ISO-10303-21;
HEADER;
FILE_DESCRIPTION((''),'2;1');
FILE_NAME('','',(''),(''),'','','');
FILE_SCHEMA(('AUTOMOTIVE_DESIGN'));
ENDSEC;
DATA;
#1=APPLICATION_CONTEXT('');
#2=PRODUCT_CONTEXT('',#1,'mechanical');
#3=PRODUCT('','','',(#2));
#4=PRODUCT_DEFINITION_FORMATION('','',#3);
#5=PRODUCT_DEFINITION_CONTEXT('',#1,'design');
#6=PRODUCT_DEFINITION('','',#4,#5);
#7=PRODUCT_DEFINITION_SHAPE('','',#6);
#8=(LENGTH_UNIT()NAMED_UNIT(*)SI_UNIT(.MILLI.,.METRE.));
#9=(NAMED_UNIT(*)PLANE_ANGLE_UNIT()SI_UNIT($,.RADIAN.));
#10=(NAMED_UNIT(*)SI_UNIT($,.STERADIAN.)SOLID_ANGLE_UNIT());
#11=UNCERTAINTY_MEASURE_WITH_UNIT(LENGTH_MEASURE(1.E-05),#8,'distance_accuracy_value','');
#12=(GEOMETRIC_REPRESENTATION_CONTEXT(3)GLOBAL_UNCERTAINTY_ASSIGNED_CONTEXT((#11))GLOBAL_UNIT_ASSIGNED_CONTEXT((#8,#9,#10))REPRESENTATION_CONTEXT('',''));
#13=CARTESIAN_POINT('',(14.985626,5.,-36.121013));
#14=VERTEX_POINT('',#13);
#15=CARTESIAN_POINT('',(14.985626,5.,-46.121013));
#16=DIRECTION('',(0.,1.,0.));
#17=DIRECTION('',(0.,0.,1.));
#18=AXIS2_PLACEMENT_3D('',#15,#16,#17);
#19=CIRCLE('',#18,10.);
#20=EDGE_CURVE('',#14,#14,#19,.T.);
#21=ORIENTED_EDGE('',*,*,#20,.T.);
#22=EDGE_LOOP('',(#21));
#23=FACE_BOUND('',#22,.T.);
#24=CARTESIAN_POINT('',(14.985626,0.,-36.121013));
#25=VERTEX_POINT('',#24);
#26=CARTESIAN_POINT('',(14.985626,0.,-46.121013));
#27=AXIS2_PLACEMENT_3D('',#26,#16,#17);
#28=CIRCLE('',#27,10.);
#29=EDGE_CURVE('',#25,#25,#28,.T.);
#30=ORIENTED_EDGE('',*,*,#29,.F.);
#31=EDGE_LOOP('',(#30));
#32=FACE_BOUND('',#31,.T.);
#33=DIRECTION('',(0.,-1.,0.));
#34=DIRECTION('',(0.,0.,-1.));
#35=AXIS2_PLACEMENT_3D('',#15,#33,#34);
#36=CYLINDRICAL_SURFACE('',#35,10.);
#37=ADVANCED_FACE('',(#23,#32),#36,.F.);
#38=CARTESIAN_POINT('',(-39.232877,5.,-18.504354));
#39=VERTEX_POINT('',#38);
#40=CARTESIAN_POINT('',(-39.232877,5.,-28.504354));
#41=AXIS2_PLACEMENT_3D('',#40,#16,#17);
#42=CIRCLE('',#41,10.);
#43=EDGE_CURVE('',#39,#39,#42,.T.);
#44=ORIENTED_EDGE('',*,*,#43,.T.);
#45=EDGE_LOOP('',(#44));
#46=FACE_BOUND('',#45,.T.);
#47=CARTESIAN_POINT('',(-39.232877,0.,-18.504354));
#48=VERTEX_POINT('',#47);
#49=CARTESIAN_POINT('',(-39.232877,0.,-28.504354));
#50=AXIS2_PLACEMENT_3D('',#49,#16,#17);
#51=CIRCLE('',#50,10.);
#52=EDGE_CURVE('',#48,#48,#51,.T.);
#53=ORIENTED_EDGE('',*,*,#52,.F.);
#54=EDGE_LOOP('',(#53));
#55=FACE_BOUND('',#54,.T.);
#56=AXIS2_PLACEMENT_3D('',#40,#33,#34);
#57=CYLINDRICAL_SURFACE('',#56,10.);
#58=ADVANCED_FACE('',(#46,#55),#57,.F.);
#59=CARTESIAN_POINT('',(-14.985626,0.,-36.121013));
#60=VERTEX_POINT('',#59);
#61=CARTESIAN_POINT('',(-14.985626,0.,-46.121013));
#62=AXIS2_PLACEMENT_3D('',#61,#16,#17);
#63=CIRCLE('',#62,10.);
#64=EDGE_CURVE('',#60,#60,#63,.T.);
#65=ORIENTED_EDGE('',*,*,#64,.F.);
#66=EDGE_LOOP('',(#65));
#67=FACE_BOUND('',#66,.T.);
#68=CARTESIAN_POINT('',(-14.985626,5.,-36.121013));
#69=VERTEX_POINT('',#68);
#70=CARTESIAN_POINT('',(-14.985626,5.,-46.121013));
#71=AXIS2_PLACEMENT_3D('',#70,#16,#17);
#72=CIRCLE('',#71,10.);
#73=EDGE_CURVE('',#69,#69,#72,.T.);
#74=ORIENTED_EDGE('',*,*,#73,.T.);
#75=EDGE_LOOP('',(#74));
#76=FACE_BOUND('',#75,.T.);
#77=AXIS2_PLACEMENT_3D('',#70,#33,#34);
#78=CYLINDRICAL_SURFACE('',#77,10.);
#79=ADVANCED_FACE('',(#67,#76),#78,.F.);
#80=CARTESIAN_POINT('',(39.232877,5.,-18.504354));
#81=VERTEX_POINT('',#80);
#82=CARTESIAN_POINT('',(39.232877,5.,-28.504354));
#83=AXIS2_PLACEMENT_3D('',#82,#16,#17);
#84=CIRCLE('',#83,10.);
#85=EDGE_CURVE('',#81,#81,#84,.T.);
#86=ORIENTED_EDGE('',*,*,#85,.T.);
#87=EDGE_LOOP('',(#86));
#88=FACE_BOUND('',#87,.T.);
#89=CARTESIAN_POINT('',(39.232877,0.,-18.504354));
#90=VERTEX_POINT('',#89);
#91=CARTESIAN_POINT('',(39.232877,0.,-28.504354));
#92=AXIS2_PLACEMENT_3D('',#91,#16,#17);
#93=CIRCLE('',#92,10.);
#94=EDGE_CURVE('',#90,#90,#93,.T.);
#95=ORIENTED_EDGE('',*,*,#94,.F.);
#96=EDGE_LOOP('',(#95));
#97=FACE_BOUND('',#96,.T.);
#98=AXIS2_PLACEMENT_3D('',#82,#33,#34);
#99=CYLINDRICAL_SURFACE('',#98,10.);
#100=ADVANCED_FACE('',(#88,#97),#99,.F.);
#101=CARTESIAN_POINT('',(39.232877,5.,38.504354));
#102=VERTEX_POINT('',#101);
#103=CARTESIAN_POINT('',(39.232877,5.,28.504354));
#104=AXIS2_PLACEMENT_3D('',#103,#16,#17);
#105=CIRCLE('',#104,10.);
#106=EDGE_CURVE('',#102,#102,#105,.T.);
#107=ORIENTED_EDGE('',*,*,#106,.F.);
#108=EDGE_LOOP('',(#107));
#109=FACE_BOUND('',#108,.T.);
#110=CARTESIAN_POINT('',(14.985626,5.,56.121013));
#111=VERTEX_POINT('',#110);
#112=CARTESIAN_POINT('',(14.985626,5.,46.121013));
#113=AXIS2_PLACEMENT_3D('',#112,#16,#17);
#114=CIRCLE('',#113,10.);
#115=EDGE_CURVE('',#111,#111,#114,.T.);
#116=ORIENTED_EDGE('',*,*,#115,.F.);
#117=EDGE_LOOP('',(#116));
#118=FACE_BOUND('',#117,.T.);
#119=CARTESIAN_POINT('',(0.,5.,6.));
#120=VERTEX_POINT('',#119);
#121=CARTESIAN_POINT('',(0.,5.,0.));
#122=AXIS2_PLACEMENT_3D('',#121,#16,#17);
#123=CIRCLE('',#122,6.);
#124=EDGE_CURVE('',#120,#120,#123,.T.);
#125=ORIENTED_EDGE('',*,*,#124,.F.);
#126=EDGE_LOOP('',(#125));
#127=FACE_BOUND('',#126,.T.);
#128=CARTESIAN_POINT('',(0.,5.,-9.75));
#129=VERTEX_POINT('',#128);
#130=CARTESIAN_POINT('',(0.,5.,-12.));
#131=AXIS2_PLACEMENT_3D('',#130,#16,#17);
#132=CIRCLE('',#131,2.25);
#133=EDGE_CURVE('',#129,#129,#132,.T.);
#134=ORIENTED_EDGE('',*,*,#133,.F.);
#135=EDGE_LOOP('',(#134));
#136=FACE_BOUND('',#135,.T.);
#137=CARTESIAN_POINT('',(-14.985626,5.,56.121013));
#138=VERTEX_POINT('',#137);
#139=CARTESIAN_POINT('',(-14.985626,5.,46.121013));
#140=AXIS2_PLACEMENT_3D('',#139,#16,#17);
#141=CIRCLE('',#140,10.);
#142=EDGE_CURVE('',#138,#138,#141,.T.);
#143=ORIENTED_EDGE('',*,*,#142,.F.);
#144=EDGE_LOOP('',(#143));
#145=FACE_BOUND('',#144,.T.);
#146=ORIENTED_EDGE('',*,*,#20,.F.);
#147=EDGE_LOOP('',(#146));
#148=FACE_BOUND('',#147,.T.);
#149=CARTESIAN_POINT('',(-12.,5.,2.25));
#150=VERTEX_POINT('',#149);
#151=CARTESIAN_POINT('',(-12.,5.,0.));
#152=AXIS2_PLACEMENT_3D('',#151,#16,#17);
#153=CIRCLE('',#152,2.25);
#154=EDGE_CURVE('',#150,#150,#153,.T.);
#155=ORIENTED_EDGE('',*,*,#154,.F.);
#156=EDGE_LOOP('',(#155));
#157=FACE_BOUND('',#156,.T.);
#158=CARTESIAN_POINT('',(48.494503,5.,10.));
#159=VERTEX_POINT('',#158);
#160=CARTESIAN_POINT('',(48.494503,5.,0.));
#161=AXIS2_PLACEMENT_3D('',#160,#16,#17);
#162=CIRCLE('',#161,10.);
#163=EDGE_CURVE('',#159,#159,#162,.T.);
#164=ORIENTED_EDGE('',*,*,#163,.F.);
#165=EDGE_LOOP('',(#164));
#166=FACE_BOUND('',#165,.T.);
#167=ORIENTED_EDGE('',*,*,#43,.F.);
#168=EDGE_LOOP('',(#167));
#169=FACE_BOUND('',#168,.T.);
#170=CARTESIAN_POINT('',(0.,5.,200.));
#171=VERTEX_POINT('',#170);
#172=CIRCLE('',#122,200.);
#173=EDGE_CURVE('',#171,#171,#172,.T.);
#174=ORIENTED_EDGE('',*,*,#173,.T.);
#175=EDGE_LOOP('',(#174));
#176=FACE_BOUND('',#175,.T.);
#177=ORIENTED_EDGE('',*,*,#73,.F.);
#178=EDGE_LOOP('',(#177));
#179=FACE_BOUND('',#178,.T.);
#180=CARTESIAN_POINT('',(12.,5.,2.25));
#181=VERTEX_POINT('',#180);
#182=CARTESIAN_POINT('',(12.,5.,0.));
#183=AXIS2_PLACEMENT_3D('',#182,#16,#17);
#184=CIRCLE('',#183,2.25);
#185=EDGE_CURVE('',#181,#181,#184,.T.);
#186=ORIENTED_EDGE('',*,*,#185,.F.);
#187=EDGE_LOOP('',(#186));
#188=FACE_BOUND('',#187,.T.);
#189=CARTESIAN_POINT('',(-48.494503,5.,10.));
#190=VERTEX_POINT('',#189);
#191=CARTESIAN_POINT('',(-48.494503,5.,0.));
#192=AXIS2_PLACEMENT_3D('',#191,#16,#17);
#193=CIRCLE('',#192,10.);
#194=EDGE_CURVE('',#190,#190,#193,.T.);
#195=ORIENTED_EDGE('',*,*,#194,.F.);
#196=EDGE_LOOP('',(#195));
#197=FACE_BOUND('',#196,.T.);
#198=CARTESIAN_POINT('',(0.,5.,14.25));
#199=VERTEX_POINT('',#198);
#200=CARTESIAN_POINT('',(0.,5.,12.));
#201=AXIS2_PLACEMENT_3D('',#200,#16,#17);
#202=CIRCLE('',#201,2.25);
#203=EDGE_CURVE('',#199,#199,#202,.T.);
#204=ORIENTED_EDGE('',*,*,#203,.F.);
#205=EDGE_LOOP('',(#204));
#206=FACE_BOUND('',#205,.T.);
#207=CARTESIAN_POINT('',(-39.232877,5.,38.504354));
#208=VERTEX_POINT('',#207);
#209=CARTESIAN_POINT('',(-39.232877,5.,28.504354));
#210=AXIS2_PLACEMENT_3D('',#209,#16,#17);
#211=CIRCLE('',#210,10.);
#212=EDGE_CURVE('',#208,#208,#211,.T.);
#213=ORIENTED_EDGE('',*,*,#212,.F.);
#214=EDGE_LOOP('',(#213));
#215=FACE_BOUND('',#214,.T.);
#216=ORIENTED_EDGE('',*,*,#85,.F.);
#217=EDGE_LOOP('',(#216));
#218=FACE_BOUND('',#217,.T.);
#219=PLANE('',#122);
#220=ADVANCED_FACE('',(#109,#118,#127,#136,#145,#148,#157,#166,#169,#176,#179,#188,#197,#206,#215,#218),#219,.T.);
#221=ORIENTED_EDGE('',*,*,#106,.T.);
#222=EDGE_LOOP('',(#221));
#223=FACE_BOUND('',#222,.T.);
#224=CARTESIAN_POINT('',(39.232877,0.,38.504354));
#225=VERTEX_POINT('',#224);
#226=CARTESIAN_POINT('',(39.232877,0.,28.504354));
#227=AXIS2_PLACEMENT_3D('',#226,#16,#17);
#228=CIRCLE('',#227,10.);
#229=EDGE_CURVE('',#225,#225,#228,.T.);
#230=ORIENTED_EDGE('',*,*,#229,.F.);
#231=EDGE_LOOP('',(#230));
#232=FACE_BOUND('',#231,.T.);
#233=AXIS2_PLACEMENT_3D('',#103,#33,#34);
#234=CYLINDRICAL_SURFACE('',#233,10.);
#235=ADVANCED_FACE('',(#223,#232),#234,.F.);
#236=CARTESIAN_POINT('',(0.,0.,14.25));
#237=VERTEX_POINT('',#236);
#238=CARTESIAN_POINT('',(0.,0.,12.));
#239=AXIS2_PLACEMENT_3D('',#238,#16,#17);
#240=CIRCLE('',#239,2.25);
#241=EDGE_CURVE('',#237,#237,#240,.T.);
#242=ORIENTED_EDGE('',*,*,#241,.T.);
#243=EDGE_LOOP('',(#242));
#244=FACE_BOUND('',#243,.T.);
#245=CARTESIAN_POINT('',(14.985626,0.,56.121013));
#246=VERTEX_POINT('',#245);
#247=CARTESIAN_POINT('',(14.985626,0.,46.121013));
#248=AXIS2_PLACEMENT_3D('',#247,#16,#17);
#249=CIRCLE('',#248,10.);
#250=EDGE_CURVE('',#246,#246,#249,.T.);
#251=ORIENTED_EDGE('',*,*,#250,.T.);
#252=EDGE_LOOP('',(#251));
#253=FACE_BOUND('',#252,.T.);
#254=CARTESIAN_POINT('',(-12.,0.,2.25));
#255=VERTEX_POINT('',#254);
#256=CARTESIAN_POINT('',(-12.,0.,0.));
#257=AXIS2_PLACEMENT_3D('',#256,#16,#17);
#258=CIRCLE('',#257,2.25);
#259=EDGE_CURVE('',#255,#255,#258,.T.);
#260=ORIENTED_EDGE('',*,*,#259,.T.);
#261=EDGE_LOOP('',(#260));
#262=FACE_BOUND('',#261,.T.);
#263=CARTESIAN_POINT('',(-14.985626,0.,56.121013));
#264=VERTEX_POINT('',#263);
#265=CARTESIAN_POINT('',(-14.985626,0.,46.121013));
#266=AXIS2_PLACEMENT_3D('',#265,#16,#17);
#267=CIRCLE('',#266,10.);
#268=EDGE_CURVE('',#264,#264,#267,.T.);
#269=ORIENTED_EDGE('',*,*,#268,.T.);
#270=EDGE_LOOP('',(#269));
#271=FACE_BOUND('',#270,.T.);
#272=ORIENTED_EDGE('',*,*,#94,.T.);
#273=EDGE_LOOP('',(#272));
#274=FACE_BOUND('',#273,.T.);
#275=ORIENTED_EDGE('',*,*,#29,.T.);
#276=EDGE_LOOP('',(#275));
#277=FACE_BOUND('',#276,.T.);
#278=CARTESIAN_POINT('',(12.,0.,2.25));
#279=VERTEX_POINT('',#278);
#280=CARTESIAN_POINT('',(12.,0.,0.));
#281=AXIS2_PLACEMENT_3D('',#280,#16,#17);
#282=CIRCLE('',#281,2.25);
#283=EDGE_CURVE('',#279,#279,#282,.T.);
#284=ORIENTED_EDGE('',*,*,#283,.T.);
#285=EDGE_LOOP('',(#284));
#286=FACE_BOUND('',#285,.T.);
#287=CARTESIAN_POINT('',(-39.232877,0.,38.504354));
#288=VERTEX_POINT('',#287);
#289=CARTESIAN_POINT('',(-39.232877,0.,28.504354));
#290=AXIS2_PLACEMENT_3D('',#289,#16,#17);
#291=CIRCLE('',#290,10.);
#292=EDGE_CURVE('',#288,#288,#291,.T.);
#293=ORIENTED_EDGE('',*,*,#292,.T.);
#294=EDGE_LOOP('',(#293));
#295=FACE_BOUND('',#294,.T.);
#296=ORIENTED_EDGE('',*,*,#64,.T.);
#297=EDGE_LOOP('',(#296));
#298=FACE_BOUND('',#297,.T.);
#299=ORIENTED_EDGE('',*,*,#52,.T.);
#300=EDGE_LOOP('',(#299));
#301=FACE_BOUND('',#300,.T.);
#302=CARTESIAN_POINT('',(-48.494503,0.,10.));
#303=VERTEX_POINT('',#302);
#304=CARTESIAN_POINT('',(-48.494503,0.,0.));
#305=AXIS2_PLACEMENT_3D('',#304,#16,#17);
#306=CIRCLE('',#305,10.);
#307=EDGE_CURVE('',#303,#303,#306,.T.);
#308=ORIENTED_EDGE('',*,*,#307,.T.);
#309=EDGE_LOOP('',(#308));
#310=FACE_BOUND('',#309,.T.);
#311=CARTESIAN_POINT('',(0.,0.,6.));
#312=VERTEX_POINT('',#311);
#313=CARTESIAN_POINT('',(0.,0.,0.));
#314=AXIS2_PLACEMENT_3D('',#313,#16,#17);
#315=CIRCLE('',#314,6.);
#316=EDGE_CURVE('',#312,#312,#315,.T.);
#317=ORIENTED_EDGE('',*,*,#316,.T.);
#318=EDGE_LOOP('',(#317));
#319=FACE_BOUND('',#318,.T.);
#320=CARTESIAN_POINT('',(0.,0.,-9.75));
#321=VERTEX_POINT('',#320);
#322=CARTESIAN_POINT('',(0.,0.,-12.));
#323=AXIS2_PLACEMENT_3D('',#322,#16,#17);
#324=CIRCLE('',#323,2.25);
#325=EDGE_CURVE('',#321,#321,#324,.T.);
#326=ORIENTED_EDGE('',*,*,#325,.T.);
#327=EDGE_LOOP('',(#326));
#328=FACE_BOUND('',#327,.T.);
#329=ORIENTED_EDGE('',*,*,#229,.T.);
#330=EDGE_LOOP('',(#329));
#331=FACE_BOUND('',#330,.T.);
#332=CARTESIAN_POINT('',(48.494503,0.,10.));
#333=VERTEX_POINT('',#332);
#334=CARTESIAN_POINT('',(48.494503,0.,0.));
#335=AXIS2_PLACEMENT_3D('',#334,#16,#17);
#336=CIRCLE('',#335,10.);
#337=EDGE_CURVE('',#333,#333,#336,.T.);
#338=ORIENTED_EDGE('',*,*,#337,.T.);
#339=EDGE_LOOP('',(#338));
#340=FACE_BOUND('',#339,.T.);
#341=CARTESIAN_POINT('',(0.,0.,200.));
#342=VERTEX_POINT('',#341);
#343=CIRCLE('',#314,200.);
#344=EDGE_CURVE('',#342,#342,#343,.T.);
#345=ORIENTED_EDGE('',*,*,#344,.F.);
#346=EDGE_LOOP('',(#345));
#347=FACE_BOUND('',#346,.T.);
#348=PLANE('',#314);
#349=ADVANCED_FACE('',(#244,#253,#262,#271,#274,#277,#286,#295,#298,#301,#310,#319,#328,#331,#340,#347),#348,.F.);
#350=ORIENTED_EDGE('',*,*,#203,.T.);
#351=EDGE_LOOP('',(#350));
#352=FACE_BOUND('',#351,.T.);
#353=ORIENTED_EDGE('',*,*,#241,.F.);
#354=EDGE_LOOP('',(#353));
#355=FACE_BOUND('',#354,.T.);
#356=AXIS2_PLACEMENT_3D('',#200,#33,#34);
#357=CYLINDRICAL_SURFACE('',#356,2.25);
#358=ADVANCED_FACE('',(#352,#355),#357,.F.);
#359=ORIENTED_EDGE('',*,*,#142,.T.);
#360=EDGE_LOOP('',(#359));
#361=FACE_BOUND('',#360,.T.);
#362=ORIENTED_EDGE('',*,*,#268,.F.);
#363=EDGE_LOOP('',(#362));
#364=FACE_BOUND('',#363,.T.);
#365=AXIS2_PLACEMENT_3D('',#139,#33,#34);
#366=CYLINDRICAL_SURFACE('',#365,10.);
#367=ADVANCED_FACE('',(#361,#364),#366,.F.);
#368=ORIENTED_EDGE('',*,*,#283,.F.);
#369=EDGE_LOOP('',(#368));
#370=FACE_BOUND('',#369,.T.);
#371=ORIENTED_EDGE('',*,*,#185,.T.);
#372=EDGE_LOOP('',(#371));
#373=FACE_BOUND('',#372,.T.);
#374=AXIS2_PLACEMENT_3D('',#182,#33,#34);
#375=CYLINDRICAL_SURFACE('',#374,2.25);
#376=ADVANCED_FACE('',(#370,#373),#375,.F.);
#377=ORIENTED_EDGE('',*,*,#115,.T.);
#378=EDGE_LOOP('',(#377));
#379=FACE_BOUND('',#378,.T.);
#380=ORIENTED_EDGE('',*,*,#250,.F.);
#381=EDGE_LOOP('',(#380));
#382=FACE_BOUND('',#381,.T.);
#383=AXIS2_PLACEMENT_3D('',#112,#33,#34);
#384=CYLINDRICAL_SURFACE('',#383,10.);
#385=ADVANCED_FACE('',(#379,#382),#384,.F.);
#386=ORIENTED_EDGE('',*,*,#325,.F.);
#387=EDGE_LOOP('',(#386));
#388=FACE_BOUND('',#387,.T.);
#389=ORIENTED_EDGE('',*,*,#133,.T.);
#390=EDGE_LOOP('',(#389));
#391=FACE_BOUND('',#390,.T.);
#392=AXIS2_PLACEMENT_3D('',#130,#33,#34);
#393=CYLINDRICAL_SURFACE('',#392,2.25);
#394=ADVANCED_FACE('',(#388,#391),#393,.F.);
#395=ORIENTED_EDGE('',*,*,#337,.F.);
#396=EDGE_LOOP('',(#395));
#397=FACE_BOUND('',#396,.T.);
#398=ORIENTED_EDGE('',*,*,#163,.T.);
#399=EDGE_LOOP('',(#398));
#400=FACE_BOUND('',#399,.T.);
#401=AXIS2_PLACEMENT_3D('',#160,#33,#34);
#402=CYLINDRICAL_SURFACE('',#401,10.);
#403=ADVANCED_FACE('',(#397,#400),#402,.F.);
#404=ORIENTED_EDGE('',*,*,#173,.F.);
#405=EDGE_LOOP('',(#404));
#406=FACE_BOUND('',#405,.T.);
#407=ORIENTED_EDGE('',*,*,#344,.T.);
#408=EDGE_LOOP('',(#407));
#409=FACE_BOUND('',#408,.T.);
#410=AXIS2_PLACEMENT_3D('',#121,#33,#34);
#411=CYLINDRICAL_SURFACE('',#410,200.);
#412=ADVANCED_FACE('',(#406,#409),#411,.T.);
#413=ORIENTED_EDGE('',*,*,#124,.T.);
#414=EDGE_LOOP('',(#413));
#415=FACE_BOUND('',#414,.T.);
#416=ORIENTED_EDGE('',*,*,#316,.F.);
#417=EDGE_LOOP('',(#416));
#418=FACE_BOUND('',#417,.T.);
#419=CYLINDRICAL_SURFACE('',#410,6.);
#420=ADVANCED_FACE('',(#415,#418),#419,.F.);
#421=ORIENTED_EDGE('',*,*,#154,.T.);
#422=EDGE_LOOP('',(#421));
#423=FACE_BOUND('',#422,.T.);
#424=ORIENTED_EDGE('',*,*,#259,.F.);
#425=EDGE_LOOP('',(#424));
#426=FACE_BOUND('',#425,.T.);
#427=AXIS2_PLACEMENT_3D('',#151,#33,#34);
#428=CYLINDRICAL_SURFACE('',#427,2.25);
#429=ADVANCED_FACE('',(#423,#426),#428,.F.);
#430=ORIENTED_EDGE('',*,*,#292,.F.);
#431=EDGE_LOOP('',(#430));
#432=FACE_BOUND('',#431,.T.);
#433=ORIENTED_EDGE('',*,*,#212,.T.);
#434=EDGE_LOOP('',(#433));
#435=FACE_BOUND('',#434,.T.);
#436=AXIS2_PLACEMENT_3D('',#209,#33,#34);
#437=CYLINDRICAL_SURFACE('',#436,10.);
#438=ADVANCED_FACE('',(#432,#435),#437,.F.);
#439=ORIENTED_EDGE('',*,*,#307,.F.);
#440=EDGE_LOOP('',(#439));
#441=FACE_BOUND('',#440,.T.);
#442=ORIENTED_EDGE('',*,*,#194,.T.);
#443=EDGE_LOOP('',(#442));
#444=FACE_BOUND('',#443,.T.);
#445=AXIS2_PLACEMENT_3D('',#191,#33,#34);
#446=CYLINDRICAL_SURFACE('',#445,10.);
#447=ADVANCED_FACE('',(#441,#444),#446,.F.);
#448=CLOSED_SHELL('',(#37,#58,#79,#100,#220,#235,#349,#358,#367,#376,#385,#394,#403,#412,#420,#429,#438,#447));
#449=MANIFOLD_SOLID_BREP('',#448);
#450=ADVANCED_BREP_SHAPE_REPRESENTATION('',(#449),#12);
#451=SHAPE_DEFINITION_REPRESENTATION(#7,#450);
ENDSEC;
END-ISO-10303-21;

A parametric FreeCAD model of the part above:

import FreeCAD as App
import Part
import Sketcher
Q = App.Units.Quantity

doc = App.newDocument("Part")
params = doc.addObject("Spreadsheet::Sheet", "Params")
for row, (alias, value) in enumerate([
    ("sketch1_diameter", "400 mm"),
    ("sketch1_diameter2", "20 mm"),
    ("sketch1_diameter3", "12 mm"),
    ("sketch1_diameter4", "4.5 mm"),
    ("pad1_length", "5 mm"),
], start=1):
    params.set(f"A{row}", alias)
    params.set(f"B{row}", "=" + value)
    params.setAlias(f"B{row}", alias)

body = doc.addObject("PartDesign::Body", "Body")

# Sketch on XZ plane
sketch1 = body.newObject("Sketcher::SketchObject", "Sketch")
sketch1.AttachmentSupport = (doc.getObject("XZ_Plane"), [""])
sketch1.MapMode = "FlatFace"
sketch1.addGeometry([
    Part.Circle(App.Vector(0, 0, 0), App.Vector(0, 0, 1), 200),  # 0
    Part.Circle(App.Vector(-39.2, -28.5, 0), App.Vector(0, 0, 1), 10),  # 1
    Part.Circle(App.Vector(-15, -46.1, 0), App.Vector(0, 0, 1), 10),  # 2
    Part.Circle(App.Vector(-48.5, 0, 0), App.Vector(0, 0, 1), 10),  # 3
    Part.Circle(App.Vector(-39.2, 28.5, 0), App.Vector(0, 0, 1), 10),  # 4
    Part.Circle(App.Vector(-12, 0, 0), App.Vector(0, 0, 1), 2.2),  # 5
    Part.Circle(App.Vector(-15, 46.1, 0), App.Vector(0, 0, 1), 10),  # 6
    Part.Circle(App.Vector(15, -46.1, 0), App.Vector(0, 0, 1), 10),  # 7
    Part.Circle(App.Vector(0, -12, 0), App.Vector(0, 0, 1), 2.2),  # 8
    Part.Circle(App.Vector(39.2, -28.5, 0), App.Vector(0, 0, 1), 10),  # 9
    Part.Circle(App.Vector(48.5, 0, 0), App.Vector(0, 0, 1), 10),  # 10
    Part.Circle(App.Vector(0, 0, 0), App.Vector(0, 0, 1), 6),  # 11
    Part.Circle(App.Vector(0, 12, 0), App.Vector(0, 0, 1), 2.2),  # 12
    Part.Circle(App.Vector(12, 0, 0), App.Vector(0, 0, 1), 2.2),  # 13
    Part.Circle(App.Vector(15, 46.1, 0), App.Vector(0, 0, 1), 10),  # 14
    Part.Circle(App.Vector(39.2, 28.5, 0), App.Vector(0, 0, 1), 10),  # 15
], False)
sketch1.addConstraint([
    Sketcher.Constraint("Coincident", 0, 3, -1, 1),
    Sketcher.Constraint("Coincident", 11, 3, -1, 1),
    Sketcher.Constraint("Equal", 1, 2),
    Sketcher.Constraint("Equal", 2, 3),
    Sketcher.Constraint("Equal", 3, 4),
    Sketcher.Constraint("Equal", 4, 6),
    Sketcher.Constraint("Equal", 6, 7),
    Sketcher.Constraint("Equal", 5, 8),
    Sketcher.Constraint("Equal", 7, 9),
    Sketcher.Constraint("Equal", 9, 10),
    Sketcher.Constraint("Equal", 8, 12),
    Sketcher.Constraint("Equal", 12, 13),
    Sketcher.Constraint("Equal", 10, 14),
    Sketcher.Constraint("Equal", 14, 15),
    Sketcher.Constraint("Symmetric", 6, 3, 7, 3, -1, 1),
    Sketcher.Constraint("Symmetric", 4, 3, 9, 3, -1, 1),
    Sketcher.Constraint("Symmetric", 3, 3, 10, 3, -1, 1),
    Sketcher.Constraint("Symmetric", 8, 3, 12, 3, -1, 1),
    Sketcher.Constraint("Symmetric", 5, 3, 13, 3, -1, 1),
    Sketcher.Constraint("Symmetric", 2, 3, 14, 3, -1, 1),
    Sketcher.Constraint("Symmetric", 1, 3, 15, 3, -1, 1),
    Sketcher.Constraint("Symmetric", 2, 3, 7, 3, -2),
    Sketcher.Constraint("Symmetric", 1, 3, 9, 3, -2),
    Sketcher.Constraint("PointOnObject", 3, 3, -1),
    Sketcher.Constraint("PointOnObject", 5, 3, -1),
    Sketcher.Constraint("PointOnObject", 8, 3, -2),
    Sketcher.Constraint("Diameter", 0, Q("400 mm")),
    Sketcher.Constraint("Diameter", 1, Q("20 mm")),
    Sketcher.Constraint("Diameter", 11, Q("12 mm")),
    Sketcher.Constraint("Diameter", 5, Q("4.5 mm")),
    Sketcher.Constraint("DistanceX", 5, 3, -1, 1, Q("12 mm")),
    Sketcher.Constraint("DistanceY", 8, 3, -1, 1, Q("12 mm")),
    Sketcher.Constraint("DistanceX", 1, 3, 2, 3, Q("24.247251 mm")),
    Sketcher.Constraint("DistanceY", 2, 3, 1, 3, Q("17.616659 mm")),
    Sketcher.Constraint("DistanceX", 2, 3, 7, 3, Q("29.971251 mm")),
    Sketcher.Constraint("DistanceX", 3, 3, 7, 3, Q("63.480128 mm")),
    Sketcher.Constraint("DistanceY", 1, 3, -1, 1, Q("28.504354 mm")),
])
sketch1.setExpression("Constraints[26]", "Params.sketch1_diameter")
sketch1.setExpression("Constraints[27]", "Params.sketch1_diameter2")
sketch1.setExpression("Constraints[28]", "Params.sketch1_diameter3")
sketch1.setExpression("Constraints[29]", "Params.sketch1_diameter4")
pad1 = body.newObject("PartDesign::Pad", "Pad")
pad1.Profile = sketch1
pad1.setExpression("Length", "Params.pad1_length")
pad1.Reversed = True

doc.recompute()
